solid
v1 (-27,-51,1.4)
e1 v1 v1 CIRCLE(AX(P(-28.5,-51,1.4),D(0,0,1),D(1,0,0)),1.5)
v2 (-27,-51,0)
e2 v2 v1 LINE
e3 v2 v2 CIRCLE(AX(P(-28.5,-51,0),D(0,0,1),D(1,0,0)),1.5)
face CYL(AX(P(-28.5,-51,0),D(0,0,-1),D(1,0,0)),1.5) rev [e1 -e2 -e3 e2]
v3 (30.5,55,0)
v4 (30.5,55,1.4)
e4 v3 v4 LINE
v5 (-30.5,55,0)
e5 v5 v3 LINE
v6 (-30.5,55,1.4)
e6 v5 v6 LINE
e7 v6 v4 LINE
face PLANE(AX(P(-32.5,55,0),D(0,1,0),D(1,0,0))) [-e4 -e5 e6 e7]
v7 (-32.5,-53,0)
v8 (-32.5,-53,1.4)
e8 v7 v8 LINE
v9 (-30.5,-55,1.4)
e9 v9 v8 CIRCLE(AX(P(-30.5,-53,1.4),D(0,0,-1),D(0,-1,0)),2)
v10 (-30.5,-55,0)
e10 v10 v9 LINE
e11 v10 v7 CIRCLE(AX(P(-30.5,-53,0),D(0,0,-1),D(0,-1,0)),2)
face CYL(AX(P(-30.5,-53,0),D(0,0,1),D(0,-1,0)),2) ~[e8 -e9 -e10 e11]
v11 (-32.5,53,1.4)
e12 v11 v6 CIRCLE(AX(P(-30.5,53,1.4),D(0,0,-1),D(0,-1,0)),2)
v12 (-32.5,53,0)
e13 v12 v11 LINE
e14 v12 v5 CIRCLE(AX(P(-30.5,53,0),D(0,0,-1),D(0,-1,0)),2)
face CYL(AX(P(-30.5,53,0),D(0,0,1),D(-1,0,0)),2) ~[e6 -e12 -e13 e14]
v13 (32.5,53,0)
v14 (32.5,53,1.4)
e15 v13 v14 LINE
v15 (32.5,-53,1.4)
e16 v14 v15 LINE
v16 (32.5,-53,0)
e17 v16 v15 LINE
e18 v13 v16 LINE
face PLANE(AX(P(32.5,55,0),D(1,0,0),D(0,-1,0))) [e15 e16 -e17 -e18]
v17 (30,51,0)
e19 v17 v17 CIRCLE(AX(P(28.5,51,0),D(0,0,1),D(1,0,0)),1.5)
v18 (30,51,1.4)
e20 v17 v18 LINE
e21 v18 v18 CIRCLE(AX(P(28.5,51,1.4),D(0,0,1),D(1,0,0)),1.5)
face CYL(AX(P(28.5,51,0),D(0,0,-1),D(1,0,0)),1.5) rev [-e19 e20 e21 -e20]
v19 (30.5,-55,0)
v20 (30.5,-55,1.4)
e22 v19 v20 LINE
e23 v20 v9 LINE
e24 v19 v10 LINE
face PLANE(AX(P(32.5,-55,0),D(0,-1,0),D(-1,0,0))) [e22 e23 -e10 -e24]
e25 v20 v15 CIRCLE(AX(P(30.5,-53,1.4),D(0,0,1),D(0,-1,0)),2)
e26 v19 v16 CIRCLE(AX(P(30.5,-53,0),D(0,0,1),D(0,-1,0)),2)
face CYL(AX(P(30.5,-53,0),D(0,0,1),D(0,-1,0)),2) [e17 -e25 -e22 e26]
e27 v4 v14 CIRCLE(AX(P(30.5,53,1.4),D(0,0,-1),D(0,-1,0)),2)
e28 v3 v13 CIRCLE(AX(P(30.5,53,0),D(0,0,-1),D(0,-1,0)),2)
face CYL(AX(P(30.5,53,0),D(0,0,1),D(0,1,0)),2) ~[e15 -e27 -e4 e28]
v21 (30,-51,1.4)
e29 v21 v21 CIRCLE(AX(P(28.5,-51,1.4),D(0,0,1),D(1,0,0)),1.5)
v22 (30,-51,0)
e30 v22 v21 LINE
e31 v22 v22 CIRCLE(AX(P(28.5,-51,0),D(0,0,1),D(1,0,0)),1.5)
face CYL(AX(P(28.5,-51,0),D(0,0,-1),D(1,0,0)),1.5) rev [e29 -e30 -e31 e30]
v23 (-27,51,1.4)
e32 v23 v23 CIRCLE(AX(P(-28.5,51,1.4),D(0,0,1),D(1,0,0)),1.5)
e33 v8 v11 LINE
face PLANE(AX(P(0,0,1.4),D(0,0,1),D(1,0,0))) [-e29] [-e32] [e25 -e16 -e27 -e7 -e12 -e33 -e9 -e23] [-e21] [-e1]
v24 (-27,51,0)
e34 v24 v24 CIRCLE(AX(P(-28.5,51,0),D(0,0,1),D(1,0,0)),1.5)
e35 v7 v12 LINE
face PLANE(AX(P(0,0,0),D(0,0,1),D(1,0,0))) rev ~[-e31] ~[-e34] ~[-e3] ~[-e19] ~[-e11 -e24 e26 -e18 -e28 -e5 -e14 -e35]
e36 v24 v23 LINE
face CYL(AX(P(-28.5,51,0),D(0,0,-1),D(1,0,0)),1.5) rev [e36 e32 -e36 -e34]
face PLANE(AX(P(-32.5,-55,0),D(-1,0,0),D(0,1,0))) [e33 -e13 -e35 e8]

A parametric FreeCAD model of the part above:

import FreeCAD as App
import Part
import Sketcher


def edges_at(feature, points):
    """Names of the edges that pass closest to the given points."""
    edges = feature.Shape.Edges
    near = lambda p: min(range(len(edges)), key=lambda i: edges[i].distToShape(Part.Vertex(*p))[0])
    return sorted({f"Edge{near(p) + 1}" for p in points})


def add_polygon(sketch, points):
    """Adds a closed chain of lines whose ends are joined by coincident constraints."""
    first, n = sketch.GeometryCount, len(points)
    for a, b in zip(points, points[1:] + points[:1]):
        sketch.addGeometry(Part.LineSegment(App.Vector(*a, 0), App.Vector(*b, 0)), False)
    for i in range(n):
        sketch.addConstraint(Sketcher.Constraint("Coincident", first + i, 2, first + (i + 1) % n, 1))

doc = App.newDocument("Part")
params = doc.addObject("Spreadsheet::Sheet", "Params")
for row, (alias, value) in enumerate([
    ("sketch1_diameter", "3 mm"),
    ("sketch1_width", "65 mm"),
    ("sketch1_height", "110 mm"),
    ("pad1_length", "1.4 mm"),
    ("fillet_radius", "2 mm"),
], start=1):
    params.set(f"A{row}", alias)
    params.set(f"B{row}", "=" + value)
    params.setAlias(f"B{row}", alias)

body = doc.addObject("PartDesign::Body", "Body")

sketch1 = body.newObject("Sketcher::SketchObject", "Sketch")
sketch1.AttachmentSupport = (doc.getObject("XY_Plane"), [""])
sketch1.MapMode = "FlatFace"
add_polygon(sketch1, [(-32.5, -55), (32.5, -55), (32.5, 55), (-32.5, 55)])
sketch1.addGeometry(Part.Circle(App.Vector(-28.5, -51, 0), App.Vector(0, 0, 1), 1.5), False)
sketch1.addGeometry(Part.Circle(App.Vector(28.5, -51, 0), App.Vector(0, 0, 1), 1.5), False)
sketch1.addGeometry(Part.Circle(App.Vector(-28.5, 51, 0), App.Vector(0, 0, 1), 1.5), False)
sketch1.addGeometry(Part.Circle(App.Vector(28.5, 51, 0), App.Vector(0, 0, 1), 1.5), False)
sketch1.addConstraint([
    Sketcher.Constraint("Horizontal", 0),
    Sketcher.Constraint("Vertical", 1),
    Sketcher.Constraint("Horizontal", 2),
    Sketcher.Constraint("Vertical", 3),
    Sketcher.Constraint("Equal", 4, 5),
    Sketcher.Constraint("Equal", 5, 6),
    Sketcher.Constraint("Equal", 6, 7),
    Sketcher.Constraint("Symmetric", 5, 3, 6, 3, -1, 1),
    Sketcher.Constraint("Symmetric", 4, 3, 7, 3, -1, 1),
    Sketcher.Constraint("Symmetric", 0, 2, 2, 2, -1, 1),
    Sketcher.Constraint("Symmetric", 4, 3, 5, 3, -2),
    Sketcher.Constraint("Diameter", 4, 3.0),
    Sketcher.Constraint("DistanceX", 0, 1, 0, 2, 65.0),
    Sketcher.Constraint("DistanceY", 1, 1, 1, 2, 110.0),
    Sketcher.Constraint("DistanceX", 4, 3, 5, 3, 57.0),
    Sketcher.Constraint("DistanceY", 4, 3, 6, 3, 102.0),
])
sketch1.setExpression("Constraints[15]", "Params.sketch1_diameter")
sketch1.setExpression("Constraints[16]", "Params.sketch1_width")
sketch1.setExpression("Constraints[17]", "Params.sketch1_height")
pad1 = body.newObject("PartDesign::Pad", "Pad")
pad1.Profile = sketch1
pad1.setExpression("Length", "Params.pad1_length")
doc.recompute()

fillet = body.newObject("PartDesign::Fillet", "Fillet")
fillet.Base = (pad1, edges_at(pad1, [
    (-32.5, 55, 0.7),
    (32.5, 55, 0.7),
    (-32.5, -55, 0.7),
    (32.5, -55, 0.7),
]))
fillet.setExpression("Radius", "Params.fillet_radius")

doc.recompute()
